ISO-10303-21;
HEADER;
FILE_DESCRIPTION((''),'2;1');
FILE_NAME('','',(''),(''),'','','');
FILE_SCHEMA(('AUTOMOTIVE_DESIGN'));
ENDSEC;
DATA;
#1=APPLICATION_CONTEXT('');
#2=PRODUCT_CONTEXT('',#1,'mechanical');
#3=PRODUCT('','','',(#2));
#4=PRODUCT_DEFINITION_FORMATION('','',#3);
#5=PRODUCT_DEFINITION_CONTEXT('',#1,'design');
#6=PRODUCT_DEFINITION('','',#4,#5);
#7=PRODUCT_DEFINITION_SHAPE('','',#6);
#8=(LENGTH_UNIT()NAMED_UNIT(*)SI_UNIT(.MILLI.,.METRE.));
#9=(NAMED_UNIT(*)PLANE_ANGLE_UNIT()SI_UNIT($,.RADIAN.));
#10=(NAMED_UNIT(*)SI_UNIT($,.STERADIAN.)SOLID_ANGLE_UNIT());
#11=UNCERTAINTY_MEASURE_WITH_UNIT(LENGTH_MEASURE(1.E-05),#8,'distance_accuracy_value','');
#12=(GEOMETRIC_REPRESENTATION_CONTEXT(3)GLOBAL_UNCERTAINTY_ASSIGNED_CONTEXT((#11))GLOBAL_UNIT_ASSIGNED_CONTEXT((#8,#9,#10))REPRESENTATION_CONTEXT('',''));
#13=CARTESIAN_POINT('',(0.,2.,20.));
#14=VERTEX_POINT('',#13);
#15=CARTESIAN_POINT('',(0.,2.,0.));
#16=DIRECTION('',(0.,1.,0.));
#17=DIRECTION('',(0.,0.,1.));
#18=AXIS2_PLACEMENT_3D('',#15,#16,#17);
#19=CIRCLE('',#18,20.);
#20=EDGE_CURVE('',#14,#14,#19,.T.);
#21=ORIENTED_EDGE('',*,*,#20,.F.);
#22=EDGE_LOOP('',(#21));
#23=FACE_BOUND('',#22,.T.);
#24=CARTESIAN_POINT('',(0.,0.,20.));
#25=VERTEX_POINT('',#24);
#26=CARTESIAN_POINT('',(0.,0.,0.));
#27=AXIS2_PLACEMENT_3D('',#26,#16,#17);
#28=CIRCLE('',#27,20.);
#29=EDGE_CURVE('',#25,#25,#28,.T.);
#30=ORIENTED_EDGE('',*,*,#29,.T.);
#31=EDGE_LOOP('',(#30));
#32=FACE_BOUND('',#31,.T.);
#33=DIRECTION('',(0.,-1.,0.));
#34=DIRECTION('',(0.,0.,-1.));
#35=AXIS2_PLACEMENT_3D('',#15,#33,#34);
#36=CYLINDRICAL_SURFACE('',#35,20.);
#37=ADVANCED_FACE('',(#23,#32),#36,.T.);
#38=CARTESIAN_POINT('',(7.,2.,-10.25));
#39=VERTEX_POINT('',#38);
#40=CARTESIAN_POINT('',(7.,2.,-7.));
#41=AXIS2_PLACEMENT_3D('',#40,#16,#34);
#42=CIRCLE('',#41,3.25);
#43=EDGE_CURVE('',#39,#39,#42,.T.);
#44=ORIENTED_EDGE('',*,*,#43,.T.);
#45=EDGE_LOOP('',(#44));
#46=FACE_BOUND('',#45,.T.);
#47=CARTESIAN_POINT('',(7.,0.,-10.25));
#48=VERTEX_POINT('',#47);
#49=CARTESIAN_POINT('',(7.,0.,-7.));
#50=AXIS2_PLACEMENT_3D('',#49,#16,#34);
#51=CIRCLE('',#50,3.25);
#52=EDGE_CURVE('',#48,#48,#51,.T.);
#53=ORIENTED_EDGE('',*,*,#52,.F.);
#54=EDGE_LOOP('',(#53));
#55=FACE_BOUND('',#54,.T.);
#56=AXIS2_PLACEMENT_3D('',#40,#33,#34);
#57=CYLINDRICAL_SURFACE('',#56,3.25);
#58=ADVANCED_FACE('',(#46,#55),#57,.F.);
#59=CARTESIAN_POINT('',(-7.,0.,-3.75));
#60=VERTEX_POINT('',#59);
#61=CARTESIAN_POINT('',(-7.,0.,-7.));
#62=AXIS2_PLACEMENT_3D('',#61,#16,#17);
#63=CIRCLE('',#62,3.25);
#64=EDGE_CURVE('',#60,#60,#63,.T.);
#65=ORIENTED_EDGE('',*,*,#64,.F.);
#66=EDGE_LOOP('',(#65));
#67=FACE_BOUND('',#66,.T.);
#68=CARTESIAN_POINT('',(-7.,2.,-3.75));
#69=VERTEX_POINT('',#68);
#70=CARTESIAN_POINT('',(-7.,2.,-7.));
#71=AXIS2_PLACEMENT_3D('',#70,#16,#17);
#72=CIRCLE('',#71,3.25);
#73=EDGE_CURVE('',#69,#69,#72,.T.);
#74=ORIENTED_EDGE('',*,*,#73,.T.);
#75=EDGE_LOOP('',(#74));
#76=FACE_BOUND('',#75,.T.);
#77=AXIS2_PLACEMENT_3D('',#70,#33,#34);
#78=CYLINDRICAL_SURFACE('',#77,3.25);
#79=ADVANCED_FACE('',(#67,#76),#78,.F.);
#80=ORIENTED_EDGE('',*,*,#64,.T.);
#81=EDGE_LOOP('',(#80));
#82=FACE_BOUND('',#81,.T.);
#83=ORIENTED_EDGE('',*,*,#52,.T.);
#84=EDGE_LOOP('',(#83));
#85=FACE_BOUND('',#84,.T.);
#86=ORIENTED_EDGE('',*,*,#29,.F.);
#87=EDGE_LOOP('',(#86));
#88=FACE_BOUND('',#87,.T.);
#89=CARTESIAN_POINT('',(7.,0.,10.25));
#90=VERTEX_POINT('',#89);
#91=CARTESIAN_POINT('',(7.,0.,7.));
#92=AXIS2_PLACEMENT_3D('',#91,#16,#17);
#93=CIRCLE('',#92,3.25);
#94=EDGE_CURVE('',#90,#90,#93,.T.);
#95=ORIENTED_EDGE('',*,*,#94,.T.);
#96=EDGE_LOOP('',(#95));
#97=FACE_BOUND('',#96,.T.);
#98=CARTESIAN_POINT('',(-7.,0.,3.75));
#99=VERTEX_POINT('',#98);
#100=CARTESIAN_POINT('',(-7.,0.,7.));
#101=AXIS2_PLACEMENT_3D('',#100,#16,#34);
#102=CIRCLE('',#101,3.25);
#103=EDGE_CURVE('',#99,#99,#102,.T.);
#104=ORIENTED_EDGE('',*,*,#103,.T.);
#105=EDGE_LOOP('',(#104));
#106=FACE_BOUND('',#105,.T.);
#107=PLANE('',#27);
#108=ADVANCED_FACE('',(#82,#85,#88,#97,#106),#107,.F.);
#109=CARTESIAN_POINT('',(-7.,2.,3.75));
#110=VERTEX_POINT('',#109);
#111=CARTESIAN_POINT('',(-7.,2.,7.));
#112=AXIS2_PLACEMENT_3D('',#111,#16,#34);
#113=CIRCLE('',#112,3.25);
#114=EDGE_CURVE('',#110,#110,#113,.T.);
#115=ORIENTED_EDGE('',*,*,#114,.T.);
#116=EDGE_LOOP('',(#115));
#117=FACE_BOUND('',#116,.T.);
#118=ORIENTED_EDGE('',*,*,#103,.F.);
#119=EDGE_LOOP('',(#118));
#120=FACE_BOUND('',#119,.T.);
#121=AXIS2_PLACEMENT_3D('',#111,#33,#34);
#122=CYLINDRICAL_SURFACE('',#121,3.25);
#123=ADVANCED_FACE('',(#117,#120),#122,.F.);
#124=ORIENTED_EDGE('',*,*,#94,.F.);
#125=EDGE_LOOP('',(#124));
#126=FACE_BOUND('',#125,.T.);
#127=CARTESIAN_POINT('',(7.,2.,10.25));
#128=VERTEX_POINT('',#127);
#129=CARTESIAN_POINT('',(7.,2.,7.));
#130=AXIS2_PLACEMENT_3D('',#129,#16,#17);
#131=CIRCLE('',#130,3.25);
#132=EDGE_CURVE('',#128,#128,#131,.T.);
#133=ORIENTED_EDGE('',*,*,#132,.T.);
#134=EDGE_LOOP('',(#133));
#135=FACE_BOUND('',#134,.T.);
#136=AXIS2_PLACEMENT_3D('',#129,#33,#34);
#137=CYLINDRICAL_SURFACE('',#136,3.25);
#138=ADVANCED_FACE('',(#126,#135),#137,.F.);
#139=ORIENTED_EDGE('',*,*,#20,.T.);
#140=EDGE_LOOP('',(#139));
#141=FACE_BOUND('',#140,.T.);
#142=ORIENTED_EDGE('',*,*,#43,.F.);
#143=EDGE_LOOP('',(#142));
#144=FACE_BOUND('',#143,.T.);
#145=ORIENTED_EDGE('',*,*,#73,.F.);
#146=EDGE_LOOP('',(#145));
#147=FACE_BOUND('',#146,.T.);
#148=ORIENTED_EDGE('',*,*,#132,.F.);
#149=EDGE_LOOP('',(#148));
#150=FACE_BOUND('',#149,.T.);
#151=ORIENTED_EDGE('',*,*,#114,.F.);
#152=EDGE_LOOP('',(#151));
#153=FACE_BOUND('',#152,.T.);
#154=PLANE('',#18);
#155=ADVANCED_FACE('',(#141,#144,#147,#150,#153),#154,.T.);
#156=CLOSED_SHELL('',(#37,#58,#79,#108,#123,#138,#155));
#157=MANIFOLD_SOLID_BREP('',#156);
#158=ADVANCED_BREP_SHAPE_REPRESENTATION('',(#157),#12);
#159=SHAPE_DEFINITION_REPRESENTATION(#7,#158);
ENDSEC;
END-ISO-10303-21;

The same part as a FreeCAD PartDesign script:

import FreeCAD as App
import Part
import Sketcher
from FreeCAD import Vector

doc = App.newDocument("Part")
body = doc.addObject("PartDesign::Body", "Body")

# Sketch on XZ plane
sketch1 = body.newObject("Sketcher::SketchObject", "Sketch")
sketch1.AttachmentSupport = (doc.getObject("XZ_Plane"), [""])
sketch1.MapMode = "FlatFace"
sketch1.addGeometry([
    Part.Circle(Vector(0, 0, 0), Vector(0, 0, 1), 20),  # 0
    Part.Circle(Vector(-7, -7, 0), Vector(0, 0, 1), 3.2),  # 1
    Part.Circle(Vector(-7, 7, 0), Vector(0, 0, 1), 3.2),  # 2
    Part.Circle(Vector(7, -7, 0), Vector(0, 0, 1), 3.2),  # 3
    Part.Circle(Vector(7, 7, 0), Vector(0, 0, 1), 3.2),  # 4
], False)
sketch1.addConstraint([
    Sketcher.Constraint("Coincident", 0, 3, -1, 1),
    Sketcher.Constraint("Equal", 1, 2),
    Sketcher.Constraint("Equal", 2, 3),
    Sketcher.Constraint("Equal", 3, 4),
    Sketcher.Constraint("Symmetric", 2, 3, 3, 3, -1, 1),
    Sketcher.Constraint("Symmetric", 1, 3, 4, 3, -1, 1),
    Sketcher.Constraint("Symmetric", 1, 3, 3, 3, -2),
    Sketcher.Constraint("Diameter", 0, 40.0),
    Sketcher.Constraint("Diameter", 1, 6.5),
    Sketcher.Constraint("DistanceX", 1, 3, -1, 1, 7.0),
    Sketcher.Constraint("DistanceY", 1, 3, -1, 1, 7.0),
])
pad1 = body.newObject("PartDesign::Pad", "Pad")
pad1.Profile = sketch1
pad1.Length = 2
pad1.Reversed = True

doc.recompute()
